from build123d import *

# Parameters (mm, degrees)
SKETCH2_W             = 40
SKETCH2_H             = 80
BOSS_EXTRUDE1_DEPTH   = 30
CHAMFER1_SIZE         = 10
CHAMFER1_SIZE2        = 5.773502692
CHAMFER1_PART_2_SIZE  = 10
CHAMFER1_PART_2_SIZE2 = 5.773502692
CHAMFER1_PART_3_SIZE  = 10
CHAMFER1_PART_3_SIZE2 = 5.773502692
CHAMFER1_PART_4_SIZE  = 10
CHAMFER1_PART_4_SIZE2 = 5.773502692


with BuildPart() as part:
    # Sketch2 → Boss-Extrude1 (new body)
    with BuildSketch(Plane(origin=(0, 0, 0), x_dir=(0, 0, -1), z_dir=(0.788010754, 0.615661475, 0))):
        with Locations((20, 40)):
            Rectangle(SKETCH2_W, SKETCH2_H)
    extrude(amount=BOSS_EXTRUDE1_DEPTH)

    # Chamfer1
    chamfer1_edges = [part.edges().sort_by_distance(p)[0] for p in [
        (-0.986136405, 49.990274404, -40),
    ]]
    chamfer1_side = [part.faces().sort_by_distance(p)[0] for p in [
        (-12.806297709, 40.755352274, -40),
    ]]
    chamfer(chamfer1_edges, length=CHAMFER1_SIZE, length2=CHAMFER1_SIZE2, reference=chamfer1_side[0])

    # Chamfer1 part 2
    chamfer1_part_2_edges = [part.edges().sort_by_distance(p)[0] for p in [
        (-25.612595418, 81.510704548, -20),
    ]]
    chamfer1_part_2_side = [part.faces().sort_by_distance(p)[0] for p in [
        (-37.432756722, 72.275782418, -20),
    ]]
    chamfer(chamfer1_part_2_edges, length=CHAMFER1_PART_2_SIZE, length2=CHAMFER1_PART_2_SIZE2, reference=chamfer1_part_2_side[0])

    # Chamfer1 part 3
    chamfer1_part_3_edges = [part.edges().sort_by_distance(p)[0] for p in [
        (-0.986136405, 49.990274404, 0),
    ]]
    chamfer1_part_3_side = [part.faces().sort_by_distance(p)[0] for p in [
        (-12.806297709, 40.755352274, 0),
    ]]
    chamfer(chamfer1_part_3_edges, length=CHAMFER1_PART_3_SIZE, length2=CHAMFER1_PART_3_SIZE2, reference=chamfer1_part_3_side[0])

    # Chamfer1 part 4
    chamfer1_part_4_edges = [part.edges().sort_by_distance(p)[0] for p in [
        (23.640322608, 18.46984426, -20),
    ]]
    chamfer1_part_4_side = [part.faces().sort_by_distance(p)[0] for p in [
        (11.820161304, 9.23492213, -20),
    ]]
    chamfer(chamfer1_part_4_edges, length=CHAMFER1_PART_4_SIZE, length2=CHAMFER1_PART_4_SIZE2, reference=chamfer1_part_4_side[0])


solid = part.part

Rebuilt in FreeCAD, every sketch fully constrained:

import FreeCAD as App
import Part
import Sketcher
from FreeCAD import Vector
Q = App.Units.Quantity


def edges_at(feature, points):
    """Names of the edges that pass closest to the given points."""
    edges = feature.Shape.Edges
    near = lambda p: min(range(len(edges)), key=lambda i: edges[i].distToShape(Part.Vertex(*p))[0])
    return sorted({f"Edge{near(p) + 1}" for p in points})


def add_polygon(sketch, points):
    """Adds a closed chain of lines whose ends are joined by coincident constraints."""
    first, n = sketch.GeometryCount, len(points)
    for a, b in zip(points, points[1:] + points[:1]):
        sketch.addGeometry(Part.LineSegment(App.Vector(*a, 0), App.Vector(*b, 0)), False)
    for i in range(n):
        sketch.addConstraint(Sketcher.Constraint("Coincident", first + i, 2, first + (i + 1) % n, 1))

doc = App.newDocument("Part")
body = doc.addObject("PartDesign::Body", "Body")

sketch1 = body.newObject("Sketcher::SketchObject", "Sketch")
sketch1.Placement = App.Placement(Vector(0, 0, 0), App.Rotation(Vector(0, 0, -1), Vector(-0.615661475, 0.788010754, 0), Vector(0.788010754, 0.615661475, 0), "ZXY"))
add_polygon(sketch1, [(0, 80), (0, 0), (40, 0), (40, 80)])
sketch1.addConstraint(Sketcher.Constraint("Vertical", 0))
sketch1.addConstraint(Sketcher.Constraint("Horizontal", 1))
sketch1.addConstraint(Sketcher.Constraint("Vertical", 2))
sketch1.addConstraint(Sketcher.Constraint("Horizontal", 3))
sketch1.addConstraint(Sketcher.Constraint("Coincident", 0, 2, -1, 1))
sketch1.addConstraint(Sketcher.Constraint("DistanceX", 1, 1, 1, 2, Q("40 mm")))
sketch1.addConstraint(Sketcher.Constraint("DistanceY", 0, 2, 0, 1, Q("80 mm")))
pad1 = body.newObject("PartDesign::Pad", "Pad")
pad1.Profile = sketch1
pad1.Length = 30
doc.recompute()

chamfer = body.newObject("PartDesign::Chamfer", "Chamfer")
chamfer.Base = (pad1, edges_at(pad1, [(-0.986, 49.99, -40)]))
chamfer.ChamferType = "Two distances"
chamfer.Size = 10
chamfer.Size2 = 5.773503
doc.recompute()

chamfer2 = body.newObject("PartDesign::Chamfer", "Chamfer001")
chamfer2.Base = (chamfer, edges_at(chamfer, [(-25.613, 81.511, -17.113)]))
chamfer2.ChamferType = "Two distances"
chamfer2.Size = 10
chamfer2.Size2 = 5.773503
chamfer2.FlipDirection = True
doc.recompute()

chamfer3 = body.newObject("PartDesign::Chamfer", "Chamfer002")
chamfer3.Base = (chamfer2, edges_at(chamfer2, [(0.791, 47.715, 0)]))
chamfer3.ChamferType = "Two distances"
chamfer3.Size = 10
chamfer3.Size2 = 5.773503
chamfer3.FlipDirection = True
doc.recompute()

chamfer4 = body.newObject("PartDesign::Chamfer", "Chamfer003")
chamfer4.Base = (chamfer3, edges_at(chamfer3, [(23.64, 18.47, -20)]))
chamfer4.ChamferType = "Two distances"
chamfer4.Size = 10
chamfer4.Size2 = 5.773503
chamfer4.FlipDirection = True

doc.recompute()
